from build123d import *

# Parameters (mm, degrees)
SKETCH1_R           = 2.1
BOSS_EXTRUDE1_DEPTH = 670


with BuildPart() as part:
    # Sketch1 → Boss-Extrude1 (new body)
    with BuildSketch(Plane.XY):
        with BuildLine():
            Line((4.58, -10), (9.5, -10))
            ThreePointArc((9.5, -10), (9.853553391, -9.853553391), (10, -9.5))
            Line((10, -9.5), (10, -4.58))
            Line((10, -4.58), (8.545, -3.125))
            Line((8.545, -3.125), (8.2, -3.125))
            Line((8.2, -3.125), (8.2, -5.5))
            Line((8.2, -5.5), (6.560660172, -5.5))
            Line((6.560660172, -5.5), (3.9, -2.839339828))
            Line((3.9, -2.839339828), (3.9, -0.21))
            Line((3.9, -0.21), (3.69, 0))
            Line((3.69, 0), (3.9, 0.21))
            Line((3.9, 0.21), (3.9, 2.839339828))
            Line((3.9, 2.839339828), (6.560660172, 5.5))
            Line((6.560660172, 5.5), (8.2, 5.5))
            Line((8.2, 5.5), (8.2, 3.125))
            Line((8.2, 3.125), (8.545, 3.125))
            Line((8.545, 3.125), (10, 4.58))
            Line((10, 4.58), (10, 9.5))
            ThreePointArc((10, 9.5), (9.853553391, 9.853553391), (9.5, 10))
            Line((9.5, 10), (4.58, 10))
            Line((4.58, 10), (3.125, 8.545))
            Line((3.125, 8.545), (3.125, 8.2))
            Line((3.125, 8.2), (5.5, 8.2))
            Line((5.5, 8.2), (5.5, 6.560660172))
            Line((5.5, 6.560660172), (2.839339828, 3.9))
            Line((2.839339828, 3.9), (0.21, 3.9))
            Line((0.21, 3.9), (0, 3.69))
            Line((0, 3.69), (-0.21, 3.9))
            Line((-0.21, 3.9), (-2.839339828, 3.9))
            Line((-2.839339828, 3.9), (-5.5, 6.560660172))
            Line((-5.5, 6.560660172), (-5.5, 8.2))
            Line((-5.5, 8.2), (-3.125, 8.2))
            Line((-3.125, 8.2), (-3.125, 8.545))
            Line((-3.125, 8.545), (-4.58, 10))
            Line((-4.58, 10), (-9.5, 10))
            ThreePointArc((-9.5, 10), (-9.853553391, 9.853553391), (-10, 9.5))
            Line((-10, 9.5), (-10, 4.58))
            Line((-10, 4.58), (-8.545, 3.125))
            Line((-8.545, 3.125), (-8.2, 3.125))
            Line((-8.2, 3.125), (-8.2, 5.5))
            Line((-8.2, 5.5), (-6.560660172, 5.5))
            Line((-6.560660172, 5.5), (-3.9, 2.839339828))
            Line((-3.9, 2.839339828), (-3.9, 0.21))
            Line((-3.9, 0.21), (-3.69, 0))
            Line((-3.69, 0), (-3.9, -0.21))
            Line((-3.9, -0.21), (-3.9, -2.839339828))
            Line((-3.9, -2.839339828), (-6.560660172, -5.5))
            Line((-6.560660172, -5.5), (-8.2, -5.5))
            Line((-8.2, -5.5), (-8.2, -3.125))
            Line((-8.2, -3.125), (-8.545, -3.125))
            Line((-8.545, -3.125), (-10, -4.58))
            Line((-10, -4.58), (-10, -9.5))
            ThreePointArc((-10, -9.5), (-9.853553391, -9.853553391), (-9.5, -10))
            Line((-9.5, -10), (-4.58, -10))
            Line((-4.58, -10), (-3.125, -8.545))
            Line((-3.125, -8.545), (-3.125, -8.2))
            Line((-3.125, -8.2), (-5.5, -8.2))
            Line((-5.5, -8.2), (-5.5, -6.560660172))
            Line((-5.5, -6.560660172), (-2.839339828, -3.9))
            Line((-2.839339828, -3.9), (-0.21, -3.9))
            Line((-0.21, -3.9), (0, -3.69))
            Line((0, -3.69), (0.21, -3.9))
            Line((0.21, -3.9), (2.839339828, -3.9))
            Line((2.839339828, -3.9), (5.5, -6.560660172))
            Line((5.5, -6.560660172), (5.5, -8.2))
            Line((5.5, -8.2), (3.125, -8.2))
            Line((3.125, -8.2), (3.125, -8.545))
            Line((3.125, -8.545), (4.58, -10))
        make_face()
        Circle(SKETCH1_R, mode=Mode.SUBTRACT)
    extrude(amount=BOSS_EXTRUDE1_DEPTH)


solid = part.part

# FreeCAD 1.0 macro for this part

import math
import FreeCAD as App
import Part
import Sketcher
Q = App.Units.Quantity

doc = App.newDocument("Part")
params = doc.addObject("Spreadsheet::Sheet", "Params")
for row, (alias, value) in enumerate([
    ("sketch1_diameter", "4.2 mm"),
    ("sketch1_radius", "0.5 mm"),
    ("sketch1_width", "4.92 mm"),
    ("pad1_length", "670 mm"),
], start=1):
    params.set(f"A{row}", alias)
    params.set(f"B{row}", "=" + value)
    params.setAlias(f"B{row}", alias)

body = doc.addObject("PartDesign::Body", "Body")

sketch1 = doc.addObject("Sketcher::SketchObject", "Sketch")
body.addObject(sketch1)
sketch1.AttachmentSupport = (doc.XY_Plane, [""])
sketch1.MapMode = "FlatFace"
sketch1.addGeometry(Part.LineSegment(App.Vector(4.58, -10, 0), App.Vector(9.5, -10, 0)), False)
sketch1.addGeometry(Part.ArcOfCircle(Part.Circle(App.Vector(9.5, -9.5, 0), App.Vector(0, 0, 1), 0.5), math.radians(-90), math.radians(0)), False)
sketch1.addGeometry(Part.LineSegment(App.Vector(10, -9.5, 0), App.Vector(10, -4.58, 0)), False)
sketch1.addGeometry(Part.LineSegment(App.Vector(10, -4.58, 0), App.Vector(8.54, -3.12, 0)), False)
sketch1.addGeometry(Part.LineSegment(App.Vector(8.54, -3.12, 0), App.Vector(8.2, -3.12, 0)), False)
sketch1.addGeometry(Part.LineSegment(App.Vector(8.2, -3.12, 0), App.Vector(8.2, -5.5, 0)), False)
sketch1.addGeometry(Part.LineSegment(App.Vector(8.2, -5.5, 0), App.Vector(6.56, -5.5, 0)), False)
sketch1.addGeometry(Part.LineSegment(App.Vector(6.56, -5.5, 0), App.Vector(3.9, -2.84, 0)), False)
sketch1.addGeometry(Part.LineSegment(App.Vector(3.9, -2.84, 0), App.Vector(3.9, -0.21, 0)), False)
sketch1.addGeometry(Part.LineSegment(App.Vector(3.9, -0.21, 0), App.Vector(3.69, 0, 0)), False)
sketch1.addGeometry(Part.LineSegment(App.Vector(3.69, 0, 0), App.Vector(3.9, 0.21, 0)), False)
sketch1.addGeometry(Part.LineSegment(App.Vector(3.9, 0.21, 0), App.Vector(3.9, 2.84, 0)), False)
sketch1.addGeometry(Part.LineSegment(App.Vector(3.9, 2.84, 0), App.Vector(6.56, 5.5, 0)), False)
sketch1.addGeometry(Part.LineSegment(App.Vector(6.56, 5.5, 0), App.Vector(8.2, 5.5, 0)), False)
sketch1.addGeometry(Part.LineSegment(App.Vector(8.2, 5.5, 0), App.Vector(8.2, 3.12, 0)), False)
sketch1.addGeometry(Part.LineSegment(App.Vector(8.2, 3.12, 0), App.Vector(8.54, 3.12, 0)), False)
sketch1.addGeometry(Part.LineSegment(App.Vector(8.54, 3.12, 0), App.Vector(10, 4.58, 0)), False)
sketch1.addGeometry(Part.LineSegment(App.Vector(10, 4.58, 0), App.Vector(10, 9.5, 0)), False)
sketch1.addGeometry(Part.ArcOfCircle(Part.Circle(App.Vector(9.5, 9.5, 0), App.Vector(0, 0, 1), 0.5), math.radians(0), math.radians(90)), False)
sketch1.addGeometry(Part.LineSegment(App.Vector(9.5, 10, 0), App.Vector(4.58, 10, 0)), False)
sketch1.addGeometry(Part.LineSegment(App.Vector(4.58, 10, 0), App.Vector(3.12, 8.54, 0)), False)
sketch1.addGeometry(Part.LineSegment(App.Vector(3.12, 8.54, 0), App.Vector(3.12, 8.2, 0)), False)
sketch1.addGeometry(Part.LineSegment(App.Vector(3.12, 8.2, 0), App.Vector(5.5, 8.2, 0)), False)
sketch1.addGeometry(Part.LineSegment(App.Vector(5.5, 8.2, 0), App.Vector(5.5, 6.56, 0)), False)
sketch1.addGeometry(Part.LineSegment(App.Vector(5.5, 6.56, 0), App.Vector(2.84, 3.9, 0)), False)
sketch1.addGeometry(Part.LineSegment(App.Vector(2.84, 3.9, 0), App.Vector(0.21, 3.9, 0)), False)
sketch1.addGeometry(Part.LineSegment(App.Vector(0.21, 3.9, 0), App.Vector(0, 3.69, 0)), False)
sketch1.addGeometry(Part.LineSegment(App.Vector(0, 3.69, 0), App.Vector(-0.21, 3.9, 0)), False)
sketch1.addGeometry(Part.LineSegment(App.Vector(-0.21, 3.9, 0), App.Vector(-2.84, 3.9, 0)), False)
sketch1.addGeometry(Part.LineSegment(App.Vector(-2.84, 3.9, 0), App.Vector(-5.5, 6.56, 0)), False)
sketch1.addGeometry(Part.LineSegment(App.Vector(-5.5, 6.56, 0), App.Vector(-5.5, 8.2, 0)), False)
sketch1.addGeometry(Part.LineSegment(App.Vector(-5.5, 8.2, 0), App.Vector(-3.12, 8.2, 0)), False)
sketch1.addGeometry(Part.LineSegment(App.Vector(-3.12, 8.2, 0), App.Vector(-3.12, 8.54, 0)), False)
sketch1.addGeometry(Part.LineSegment(App.Vector(-3.12, 8.54, 0), App.Vector(-4.58, 10, 0)), False)
sketch1.addGeometry(Part.LineSegment(App.Vector(-4.58, 10, 0), App.Vector(-9.5, 10, 0)), False)
sketch1.addGeometry(Part.ArcOfCircle(Part.Circle(App.Vector(-9.5, 9.5, 0), App.Vector(0, 0, 1), 0.5), math.radians(90), math.radians(180)), False)
sketch1.addGeometry(Part.LineSegment(App.Vector(-10, 9.5, 0), App.Vector(-10, 4.58, 0)), False)
sketch1.addGeometry(Part.LineSegment(App.Vector(-10, 4.58, 0), App.Vector(-8.54, 3.12, 0)), False)
sketch1.addGeometry(Part.LineSegment(App.Vector(-8.54, 3.12, 0), App.Vector(-8.2, 3.12, 0)), False)
sketch1.addGeometry(Part.LineSegment(App.Vector(-8.2, 3.12, 0), App.Vector(-8.2, 5.5, 0)), False)
sketch1.addGeometry(Part.LineSegment(App.Vector(-8.2, 5.5, 0), App.Vector(-6.56, 5.5, 0)), False)
sketch1.addGeometry(Part.LineSegment(App.Vector(-6.56, 5.5, 0), App.Vector(-3.9, 2.84, 0)), False)
sketch1.addGeometry(Part.LineSegment(App.Vector(-3.9, 2.84, 0), App.Vector(-3.9, 0.21, 0)), False)
sketch1.addGeometry(Part.LineSegment(App.Vector(-3.9, 0.21, 0), App.Vector(-3.69, 0, 0)), False)
sketch1.addGeometry(Part.LineSegment(App.Vector(-3.69, 0, 0), App.Vector(-3.9, -0.21, 0)), False)
sketch1.addGeometry(Part.LineSegment(App.Vector(-3.9, -0.21, 0), App.Vector(-3.9, -2.84, 0)), False)
sketch1.addGeometry(Part.LineSegment(App.Vector(-3.9, -2.84, 0), App.Vector(-6.56, -5.5, 0)), False)
sketch1.addGeometry(Part.LineSegment(App.Vector(-6.56, -5.5, 0), App.Vector(-8.2, -5.5, 0)), False)
sketch1.addGeometry(Part.LineSegment(App.Vector(-8.2, -5.5, 0), App.Vector(-8.2, -3.12, 0)), False)
sketch1.addGeometry(Part.LineSegment(App.Vector(-8.2, -3.12, 0), App.Vector(-8.54, -3.12, 0)), False)
sketch1.addGeometry(Part.LineSegment(App.Vector(-8.54, -3.12, 0), App.Vector(-10, -4.58, 0)), False)
sketch1.addGeometry(Part.LineSegment(App.Vector(-10, -4.58, 0), App.Vector(-10, -9.5, 0)), False)
sketch1.addGeometry(Part.ArcOfCircle(Part.Circle(App.Vector(-9.5, -9.5, 0), App.Vector(0, 0, 1), 0.5), math.radians(180), math.radians(270)), False)
sketch1.addGeometry(Part.LineSegment(App.Vector(-9.5, -10, 0), App.Vector(-4.58, -10, 0)), False)
sketch1.addGeometry(Part.LineSegment(App.Vector(-4.58, -10, 0), App.Vector(-3.12, -8.54, 0)), False)
sketch1.addGeometry(Part.LineSegment(App.Vector(-3.12, -8.54, 0), App.Vector(-3.12, -8.2, 0)), False)
sketch1.addGeometry(Part.LineSegment(App.Vector(-3.12, -8.2, 0), App.Vector(-5.5, -8.2, 0)), False)
sketch1.addGeometry(Part.LineSegment(App.Vector(-5.5, -8.2, 0), App.Vector(-5.5, -6.56, 0)), False)
sketch1.addGeometry(Part.LineSegment(App.Vector(-5.5, -6.56, 0), App.Vector(-2.84, -3.9, 0)), False)
sketch1.addGeometry(Part.LineSegment(App.Vector(-2.84, -3.9, 0), App.Vector(-0.21, -3.9, 0)), False)
sketch1.addGeometry(Part.LineSegment(App.Vector(-0.21, -3.9, 0), App.Vector(0, -3.69, 0)), False)
sketch1.addGeometry(Part.LineSegment(App.Vector(0, -3.69, 0), App.Vector(0.21, -3.9, 0)), False)
sketch1.addGeometry(Part.LineSegment(App.Vector(0.21, -3.9, 0), App.Vector(2.84, -3.9, 0)), False)
sketch1.addGeometry(Part.LineSegment(App.Vector(2.84, -3.9, 0), App.Vector(5.5, -6.56, 0)), False)
sketch1.addGeometry(Part.LineSegment(App.Vector(5.5, -6.56, 0), App.Vector(5.5, -8.2, 0)), False)
sketch1.addGeometry(Part.LineSegment(App.Vector(5.5, -8.2, 0), App.Vector(3.12, -8.2, 0)), False)
sketch1.addGeometry(Part.LineSegment(App.Vector(3.12, -8.2, 0), App.Vector(3.12, -8.54, 0)), False)
sketch1.addGeometry(Part.LineSegment(App.Vector(3.12, -8.54, 0), App.Vector(4.58, -10, 0)), False)
sketch1.addGeometry(Part.Circle(App.Vector(0, 0, 0), App.Vector(0, 0, 1), 2.1), False)
sketch1.addConstraint(Sketcher.Constraint("Tangent", 0, 2, 1, 1))
sketch1.addConstraint(Sketcher.Constraint("Tangent", 1, 2, 2, 1))
sketch1.addConstraint(Sketcher.Constraint("Coincident", 2, 2, 3, 1))
sketch1.addConstraint(Sketcher.Constraint("Coincident", 3, 2, 4, 1))
sketch1.addConstraint(Sketcher.Constraint("Coincident", 4, 2, 5, 1))
sketch1.addConstraint(Sketcher.Constraint("Coincident", 5, 2, 6, 1))
sketch1.addConstraint(Sketcher.Constraint("Coincident", 6, 2, 7, 1))
sketch1.addConstraint(Sketcher.Constraint("Coincident", 7, 2, 8, 1))
sketch1.addConstraint(Sketcher.Constraint("Coincident", 8, 2, 9, 1))
sketch1.addConstraint(Sketcher.Constraint("Coincident", 9, 2, 10, 1))
sketch1.addConstraint(Sketcher.Constraint("Coincident", 10, 2, 11, 1))
sketch1.addConstraint(Sketcher.Constraint("Coincident", 11, 2, 12, 1))
sketch1.addConstraint(Sketcher.Constraint("Coincident", 12, 2, 13, 1))
sketch1.addConstraint(Sketcher.Constraint("Coincident", 13, 2, 14, 1))
sketch1.addConstraint(Sketcher.Constraint("Coincident", 14, 2, 15, 1))
sketch1.addConstraint(Sketcher.Constraint("Coincident", 15, 2, 16, 1))
sketch1.addConstraint(Sketcher.Constraint("Coincident", 16, 2, 17, 1))
sketch1.addConstraint(Sketcher.Constraint("Tangent", 17, 2, 18, 1))
sketch1.addConstraint(Sketcher.Constraint("Tangent", 18, 2, 19, 1))
sketch1.addConstraint(Sketcher.Constraint("Coincident", 19, 2, 20, 1))
sketch1.addConstraint(Sketcher.Constraint("Coincident", 20, 2, 21, 1))
sketch1.addConstraint(Sketcher.Constraint("Coincident", 21, 2, 22, 1))
sketch1.addConstraint(Sketcher.Constraint("Coincident", 22, 2, 23, 1))
sketch1.addConstraint(Sketcher.Constraint("Coincident", 23, 2, 24, 1))
sketch1.addConstraint(Sketcher.Constraint("Coincident", 24, 2, 25, 1))
sketch1.addConstraint(Sketcher.Constraint("Coincident", 25, 2, 26, 1))
sketch1.addConstraint(Sketcher.Constraint("Coincident", 26, 2, 27, 1))
sketch1.addConstraint(Sketcher.Constraint("Coincident", 27, 2, 28, 1))
sketch1.addConstraint(Sketcher.Constraint("Coincident", 28, 2, 29, 1))
sketch1.addConstraint(Sketcher.Constraint("Coincident", 29, 2, 30, 1))
sketch1.addConstraint(Sketcher.Constraint("Coincident", 30, 2, 31, 1))
sketch1.addConstraint(Sketcher.Constraint("Coincident", 31, 2, 32, 1))
sketch1.addConstraint(Sketcher.Constraint("Coincident", 32, 2, 33, 1))
sketch1.addConstraint(Sketcher.Constraint("Coincident", 33, 2, 34, 1))
sketch1.addConstraint(Sketcher.Constraint("Tangent", 34, 2, 35, 1))
sketch1.addConstraint(Sketcher.Constraint("Tangent", 35, 2, 36, 1))
sketch1.addConstraint(Sketcher.Constraint("Coincident", 36, 2, 37, 1))
sketch1.addConstraint(Sketcher.Constraint("Coincident", 37, 2, 38, 1))
sketch1.addConstraint(Sketcher.Constraint("Coincident", 38, 2, 39, 1))
sketch1.addConstraint(Sketcher.Constraint("Coincident", 39, 2, 40, 1))
sketch1.addConstraint(Sketcher.Constraint("Coincident", 40, 2, 41, 1))
sketch1.addConstraint(Sketcher.Constraint("Coincident", 41, 2, 42, 1))
sketch1.addConstraint(Sketcher.Constraint("Coincident", 42, 2, 43, 1))
sketch1.addConstraint(Sketcher.Constraint("Coincident", 43, 2, 44, 1))
sketch1.addConstraint(Sketcher.Constraint("Coincident", 44, 2, 45, 1))
sketch1.addConstraint(Sketcher.Constraint("Coincident", 45, 2, 46, 1))
sketch1.addConstraint(Sketcher.Constraint("Coincident", 46, 2, 47, 1))
sketch1.addConstraint(Sketcher.Constraint("Coincident", 47, 2, 48, 1))
sketch1.addConstraint(Sketcher.Constraint("Coincident", 48, 2, 49, 1))
sketch1.addConstraint(Sketcher.Constraint("Coincident", 49, 2, 50, 1))
sketch1.addConstraint(Sketcher.Constraint("Coincident", 50, 2, 51, 1))
sketch1.addConstraint(Sketcher.Constraint("Tangent", 51, 2, 52, 1))
sketch1.addConstraint(Sketcher.Constraint("Tangent", 52, 2, 53, 1))
sketch1.addConstraint(Sketcher.Constraint("Coincident", 53, 2, 54, 1))
sketch1.addConstraint(Sketcher.Constraint("Coincident", 54, 2, 55, 1))
sketch1.addConstraint(Sketcher.Constraint("Coincident", 55, 2, 56, 1))
sketch1.addConstraint(Sketcher.Constraint("Coincident", 56, 2, 57, 1))
sketch1.addConstraint(Sketcher.Constraint("Coincident", 57, 2, 58, 1))
sketch1.addConstraint(Sketcher.Constraint("Coincident", 58, 2, 59, 1))
sketch1.addConstraint(Sketcher.Constraint("Coincident", 59, 2, 60, 1))
sketch1.addConstraint(Sketcher.Constraint("Coincident", 60, 2, 61, 1))
sketch1.addConstraint(Sketcher.Constraint("Coincident", 61, 2, 62, 1))
sketch1.addConstraint(Sketcher.Constraint("Coincident", 62, 2, 63, 1))
sketch1.addConstraint(Sketcher.Constraint("Coincident", 63, 2, 64, 1))
sketch1.addConstraint(Sketcher.Constraint("Coincident", 64, 2, 65, 1))
sketch1.addConstraint(Sketcher.Constraint("Coincident", 65, 2, 66, 1))
sketch1.addConstraint(Sketcher.Constraint("Coincident", 66, 2, 67, 1))
sketch1.addConstraint(Sketcher.Constraint("Coincident", 67, 2, 0, 1))
sketch1.addConstraint(Sketcher.Constraint("Horizontal", 0))
sketch1.addConstraint(Sketcher.Constraint("Vertical", 2))
sketch1.addConstraint(Sketcher.Constraint("Horizontal", 4))
sketch1.addConstraint(Sketcher.Constraint("Vertical", 5))
sketch1.addConstraint(Sketcher.Constraint("Horizontal", 6))
sketch1.addConstraint(Sketcher.Constraint("Vertical", 8))
sketch1.addConstraint(Sketcher.Constraint("Vertical", 11))
sketch1.addConstraint(Sketcher.Constraint("Horizontal", 13))
sketch1.addConstraint(Sketcher.Constraint("Vertical", 14))
sketch1.addConstraint(Sketcher.Constraint("Horizontal", 15))
sketch1.addConstraint(Sketcher.Constraint("Vertical", 17))
sketch1.addConstraint(Sketcher.Constraint("Horizontal", 19))
sketch1.addConstraint(Sketcher.Constraint("Vertical", 21))
sketch1.addConstraint(Sketcher.Constraint("Horizontal", 22))
sketch1.addConstraint(Sketcher.Constraint("Vertical", 23))
sketch1.addConstraint(Sketcher.Constraint("Horizontal", 25))
sketch1.addConstraint(Sketcher.Constraint("Horizontal", 28))
sketch1.addConstraint(Sketcher.Constraint("Vertical", 30))
sketch1.addConstraint(Sketcher.Constraint("Horizontal", 31))
sketch1.addConstraint(Sketcher.Constraint("Vertical", 32))
sketch1.addConstraint(Sketcher.Constraint("Horizontal", 34))
sketch1.addConstraint(Sketcher.Constraint("Vertical", 36))
sketch1.addConstraint(Sketcher.Constraint("Horizontal", 38))
sketch1.addConstraint(Sketcher.Constraint("Vertical", 39))
sketch1.addConstraint(Sketcher.Constraint("Horizontal", 40))
sketch1.addConstraint(Sketcher.Constraint("Vertical", 42))
sketch1.addConstraint(Sketcher.Constraint("Vertical", 45))
sketch1.addConstraint(Sketcher.Constraint("Horizontal", 47))
sketch1.addConstraint(Sketcher.Constraint("Vertical", 48))
sketch1.addConstraint(Sketcher.Constraint("Horizontal", 49))
sketch1.addConstraint(Sketcher.Constraint("Vertical", 51))
sketch1.addConstraint(Sketcher.Constraint("Horizontal", 53))
sketch1.addConstraint(Sketcher.Constraint("Vertical", 55))
sketch1.addConstraint(Sketcher.Constraint("Horizontal", 56))
sketch1.addConstraint(Sketcher.Constraint("Vertical", 57))
sketch1.addConstraint(Sketcher.Constraint("Horizontal", 59))
sketch1.addConstraint(Sketcher.Constraint("Horizontal", 62))
sketch1.addConstraint(Sketcher.Constraint("Vertical", 64))
sketch1.addConstraint(Sketcher.Constraint("Horizontal", 65))
sketch1.addConstraint(Sketcher.Constraint("Vertical", 66))
sketch1.addConstraint(Sketcher.Constraint("Coincident", 68, 3, -1, 1))
sketch1.addConstraint(Sketcher.Constraint("Equal", 1, 18))
sketch1.addConstraint(Sketcher.Constraint("Equal", 18, 35))
sketch1.addConstraint(Sketcher.Constraint("Equal", 35, 52))
sketch1.addConstraint(Sketcher.Constraint("Symmetric", 1, 3, 35, 3, -1, 1))
sketch1.addConstraint(Sketcher.Constraint("Symmetric", 18, 3, 52, 3, -1, 1))
sketch1.addConstraint(Sketcher.Constraint("Symmetric", 3, 2, 37, 2, -1, 1))
sketch1.addConstraint(Sketcher.Constraint("Symmetric", 5, 2, 39, 2, -1, 1))
sketch1.addConstraint(Sketcher.Constraint("Symmetric", 7, 2, 41, 2, -1, 1))
sketch1.addConstraint(Sketcher.Constraint("Symmetric", 9, 2, 43, 2, -1, 1))
sketch1.addConstraint(Sketcher.Constraint("Symmetric", 10, 2, 44, 2, -1, 1))
sketch1.addConstraint(Sketcher.Constraint("Symmetric", 12, 2, 46, 2, -1, 1))
sketch1.addConstraint(Sketcher.Constraint("Symmetric", 14, 2, 48, 2, -1, 1))
sketch1.addConstraint(Sketcher.Constraint("Symmetric", 20, 2, 54, 2, -1, 1))
sketch1.addConstraint(Sketcher.Constraint("Symmetric", 22, 2, 56, 2, -1, 1))
sketch1.addConstraint(Sketcher.Constraint("Symmetric", 24, 2, 58, 2, -1, 1))
sketch1.addConstraint(Sketcher.Constraint("Symmetric", 26, 2, 60, 2, -1, 1))
sketch1.addConstraint(Sketcher.Constraint("Symmetric", 27, 2, 61, 2, -1, 1))
sketch1.addConstraint(Sketcher.Constraint("Symmetric", 29, 2, 63, 2, -1, 1))
sketch1.addConstraint(Sketcher.Constraint("Symmetric", 31, 2, 65, 2, -1, 1))
sketch1.addConstraint(Sketcher.Constraint("Symmetric", 18, 3, 35, 3, -2))
sketch1.addConstraint(Sketcher.Constraint("Symmetric", 25, 2, 27, 2, -2))
sketch1.addConstraint(Sketcher.Constraint("Symmetric", 23, 2, 29, 2, -2))
sketch1.addConstraint(Sketcher.Constraint("Symmetric", 21, 2, 31, 2, -2))
sketch1.addConstraint(Sketcher.Constraint("Symmetric", 15, 2, 37, 2, -2))
sketch1.addConstraint(Sketcher.Constraint("Symmetric", 13, 2, 39, 2, -2))
sketch1.addConstraint(Sketcher.Constraint("Symmetric", 11, 2, 41, 2, -2))
sketch1.addConstraint(Sketcher.Constraint("PointOnObject", 9, 2, -1))
sketch1.addConstraint(Sketcher.Constraint("PointOnObject", 26, 2, -2))
sketch1.addConstraint(Sketcher.Constraint("Parallel", 3, 7))
sketch1.addConstraint(Sketcher.Constraint("Parallel", 7, 9))
sketch1.addConstraint(Sketcher.Constraint("Perpendicular", 9, 10))
sketch1.addConstraint(Sketcher.Constraint("Parallel", 10, 12))
sketch1.addConstraint(Sketcher.Constraint("Parallel", 12, 16))
sketch1.addConstraint(Sketcher.Constraint("Parallel", 16, 20))
sketch1.addConstraint(Sketcher.Constraint("Parallel", 20, 24))
sketch1.addConstraint(Sketcher.Constraint("Parallel", 24, 26))
sketch1.addConstraint(Sketcher.Constraint("Perpendicular", 26, 27))
sketch1.addConstraint(Sketcher.Constraint("Parallel", 27, 29))
sketch1.addConstraint(Sketcher.Constraint("Parallel", 29, 33))
sketch1.addConstraint(Sketcher.Constraint("Parallel", 33, 37))
sketch1.addConstraint(Sketcher.Constraint("Parallel", 37, 41))
sketch1.addConstraint(Sketcher.Constraint("Parallel", 41, 43))
sketch1.addConstraint(Sketcher.Constraint("Parallel", 44, 46))
sketch1.addConstraint(Sketcher.Constraint("Parallel", 46, 50))
sketch1.addConstraint(Sketcher.Constraint("Parallel", 50, 54))
sketch1.addConstraint(Sketcher.Constraint("Parallel", 54, 58))
sketch1.addConstraint(Sketcher.Constraint("Parallel", 58, 60))
sketch1.addConstraint(Sketcher.Constraint("Parallel", 61, 63))
sketch1.addConstraint(Sketcher.Constraint("Parallel", 63, 67))
sketch1.addConstraint(Sketcher.Constraint("Horizontal", 20, 2, 32, 2))
sketch1.addConstraint(Sketcher.Constraint("Horizontal", 2, 2, 50, 2))
sketch1.addConstraint(Sketcher.Constraint("Horizontal", 54, 2, 66, 2))
sketch1.addConstraint(Sketcher.Constraint("Equal", 53, 2))
sketch1.addConstraint(Sketcher.Constraint("Equal", 65, 5))
sketch1.addConstraint(Sketcher.Constraint("Equal", 62, 8))
sketch1.addConstraint(Sketcher.Constraint("Equal", 49, 21))
sketch1.addConstraint(Sketcher.Constraint("Equal", 47, 23))
sketch1.addConstraint(Sketcher.Constraint("Equal", 16, 20))
sketch1.addConstraint(Sketcher.Constraint("Equal", 12, 24))
sketch1.addConstraint(Sketcher.Constraint("Equal", 10, 26))
sketch1.addConstraint(Sketcher.Constraint("Diameter", 68, Q("4.2 mm")))
sketch1.addConstraint(Sketcher.Constraint("Radius", 1, Q("0.5 mm")))
sketch1.addConstraint(Sketcher.Constraint("DistanceY", 0, 2, -1, 1, Q("10 mm")))
sketch1.addConstraint(Sketcher.Constraint("DistanceX", 0, 1, 0, 2, Q("4.92 mm")))
sketch1.addConstraint(Sketcher.Constraint("DistanceX", -1, 1, 4, 2, Q("8.2 mm")))
sketch1.addConstraint(Sketcher.Constraint("DistanceY", 5, 2, -1, 1, Q("5.5 mm")))
sketch1.addConstraint(Sketcher.Constraint("DistanceX", -1, 1, 7, 2, Q("3.9 mm")))
sketch1.addConstraint(Sketcher.Constraint("DistanceX", 4, 2, 4, 1, Q("0.345 mm")))
sketch1.addConstraint(Sketcher.Constraint("DistanceY", 8, 2, -1, 1, Q("0.21 mm")))
sketch1.addConstraint(Sketcher.Constraint("DistanceX", 6, 2, 6, 1, Q("1.63934 mm")))
sketch1.setExpression("Constraints[169]", "Params.sketch1_diameter")
sketch1.setExpression("Constraints[170]", "Params.sketch1_radius")
sketch1.setExpression("Constraints[172]", "Params.sketch1_width")
pad1 = doc.addObject("PartDesign::Pad", "Pad")
body.addObject(pad1)
pad1.Profile = sketch1
pad1.setExpression("Length", "Params.pad1_length")

doc.recompute()
